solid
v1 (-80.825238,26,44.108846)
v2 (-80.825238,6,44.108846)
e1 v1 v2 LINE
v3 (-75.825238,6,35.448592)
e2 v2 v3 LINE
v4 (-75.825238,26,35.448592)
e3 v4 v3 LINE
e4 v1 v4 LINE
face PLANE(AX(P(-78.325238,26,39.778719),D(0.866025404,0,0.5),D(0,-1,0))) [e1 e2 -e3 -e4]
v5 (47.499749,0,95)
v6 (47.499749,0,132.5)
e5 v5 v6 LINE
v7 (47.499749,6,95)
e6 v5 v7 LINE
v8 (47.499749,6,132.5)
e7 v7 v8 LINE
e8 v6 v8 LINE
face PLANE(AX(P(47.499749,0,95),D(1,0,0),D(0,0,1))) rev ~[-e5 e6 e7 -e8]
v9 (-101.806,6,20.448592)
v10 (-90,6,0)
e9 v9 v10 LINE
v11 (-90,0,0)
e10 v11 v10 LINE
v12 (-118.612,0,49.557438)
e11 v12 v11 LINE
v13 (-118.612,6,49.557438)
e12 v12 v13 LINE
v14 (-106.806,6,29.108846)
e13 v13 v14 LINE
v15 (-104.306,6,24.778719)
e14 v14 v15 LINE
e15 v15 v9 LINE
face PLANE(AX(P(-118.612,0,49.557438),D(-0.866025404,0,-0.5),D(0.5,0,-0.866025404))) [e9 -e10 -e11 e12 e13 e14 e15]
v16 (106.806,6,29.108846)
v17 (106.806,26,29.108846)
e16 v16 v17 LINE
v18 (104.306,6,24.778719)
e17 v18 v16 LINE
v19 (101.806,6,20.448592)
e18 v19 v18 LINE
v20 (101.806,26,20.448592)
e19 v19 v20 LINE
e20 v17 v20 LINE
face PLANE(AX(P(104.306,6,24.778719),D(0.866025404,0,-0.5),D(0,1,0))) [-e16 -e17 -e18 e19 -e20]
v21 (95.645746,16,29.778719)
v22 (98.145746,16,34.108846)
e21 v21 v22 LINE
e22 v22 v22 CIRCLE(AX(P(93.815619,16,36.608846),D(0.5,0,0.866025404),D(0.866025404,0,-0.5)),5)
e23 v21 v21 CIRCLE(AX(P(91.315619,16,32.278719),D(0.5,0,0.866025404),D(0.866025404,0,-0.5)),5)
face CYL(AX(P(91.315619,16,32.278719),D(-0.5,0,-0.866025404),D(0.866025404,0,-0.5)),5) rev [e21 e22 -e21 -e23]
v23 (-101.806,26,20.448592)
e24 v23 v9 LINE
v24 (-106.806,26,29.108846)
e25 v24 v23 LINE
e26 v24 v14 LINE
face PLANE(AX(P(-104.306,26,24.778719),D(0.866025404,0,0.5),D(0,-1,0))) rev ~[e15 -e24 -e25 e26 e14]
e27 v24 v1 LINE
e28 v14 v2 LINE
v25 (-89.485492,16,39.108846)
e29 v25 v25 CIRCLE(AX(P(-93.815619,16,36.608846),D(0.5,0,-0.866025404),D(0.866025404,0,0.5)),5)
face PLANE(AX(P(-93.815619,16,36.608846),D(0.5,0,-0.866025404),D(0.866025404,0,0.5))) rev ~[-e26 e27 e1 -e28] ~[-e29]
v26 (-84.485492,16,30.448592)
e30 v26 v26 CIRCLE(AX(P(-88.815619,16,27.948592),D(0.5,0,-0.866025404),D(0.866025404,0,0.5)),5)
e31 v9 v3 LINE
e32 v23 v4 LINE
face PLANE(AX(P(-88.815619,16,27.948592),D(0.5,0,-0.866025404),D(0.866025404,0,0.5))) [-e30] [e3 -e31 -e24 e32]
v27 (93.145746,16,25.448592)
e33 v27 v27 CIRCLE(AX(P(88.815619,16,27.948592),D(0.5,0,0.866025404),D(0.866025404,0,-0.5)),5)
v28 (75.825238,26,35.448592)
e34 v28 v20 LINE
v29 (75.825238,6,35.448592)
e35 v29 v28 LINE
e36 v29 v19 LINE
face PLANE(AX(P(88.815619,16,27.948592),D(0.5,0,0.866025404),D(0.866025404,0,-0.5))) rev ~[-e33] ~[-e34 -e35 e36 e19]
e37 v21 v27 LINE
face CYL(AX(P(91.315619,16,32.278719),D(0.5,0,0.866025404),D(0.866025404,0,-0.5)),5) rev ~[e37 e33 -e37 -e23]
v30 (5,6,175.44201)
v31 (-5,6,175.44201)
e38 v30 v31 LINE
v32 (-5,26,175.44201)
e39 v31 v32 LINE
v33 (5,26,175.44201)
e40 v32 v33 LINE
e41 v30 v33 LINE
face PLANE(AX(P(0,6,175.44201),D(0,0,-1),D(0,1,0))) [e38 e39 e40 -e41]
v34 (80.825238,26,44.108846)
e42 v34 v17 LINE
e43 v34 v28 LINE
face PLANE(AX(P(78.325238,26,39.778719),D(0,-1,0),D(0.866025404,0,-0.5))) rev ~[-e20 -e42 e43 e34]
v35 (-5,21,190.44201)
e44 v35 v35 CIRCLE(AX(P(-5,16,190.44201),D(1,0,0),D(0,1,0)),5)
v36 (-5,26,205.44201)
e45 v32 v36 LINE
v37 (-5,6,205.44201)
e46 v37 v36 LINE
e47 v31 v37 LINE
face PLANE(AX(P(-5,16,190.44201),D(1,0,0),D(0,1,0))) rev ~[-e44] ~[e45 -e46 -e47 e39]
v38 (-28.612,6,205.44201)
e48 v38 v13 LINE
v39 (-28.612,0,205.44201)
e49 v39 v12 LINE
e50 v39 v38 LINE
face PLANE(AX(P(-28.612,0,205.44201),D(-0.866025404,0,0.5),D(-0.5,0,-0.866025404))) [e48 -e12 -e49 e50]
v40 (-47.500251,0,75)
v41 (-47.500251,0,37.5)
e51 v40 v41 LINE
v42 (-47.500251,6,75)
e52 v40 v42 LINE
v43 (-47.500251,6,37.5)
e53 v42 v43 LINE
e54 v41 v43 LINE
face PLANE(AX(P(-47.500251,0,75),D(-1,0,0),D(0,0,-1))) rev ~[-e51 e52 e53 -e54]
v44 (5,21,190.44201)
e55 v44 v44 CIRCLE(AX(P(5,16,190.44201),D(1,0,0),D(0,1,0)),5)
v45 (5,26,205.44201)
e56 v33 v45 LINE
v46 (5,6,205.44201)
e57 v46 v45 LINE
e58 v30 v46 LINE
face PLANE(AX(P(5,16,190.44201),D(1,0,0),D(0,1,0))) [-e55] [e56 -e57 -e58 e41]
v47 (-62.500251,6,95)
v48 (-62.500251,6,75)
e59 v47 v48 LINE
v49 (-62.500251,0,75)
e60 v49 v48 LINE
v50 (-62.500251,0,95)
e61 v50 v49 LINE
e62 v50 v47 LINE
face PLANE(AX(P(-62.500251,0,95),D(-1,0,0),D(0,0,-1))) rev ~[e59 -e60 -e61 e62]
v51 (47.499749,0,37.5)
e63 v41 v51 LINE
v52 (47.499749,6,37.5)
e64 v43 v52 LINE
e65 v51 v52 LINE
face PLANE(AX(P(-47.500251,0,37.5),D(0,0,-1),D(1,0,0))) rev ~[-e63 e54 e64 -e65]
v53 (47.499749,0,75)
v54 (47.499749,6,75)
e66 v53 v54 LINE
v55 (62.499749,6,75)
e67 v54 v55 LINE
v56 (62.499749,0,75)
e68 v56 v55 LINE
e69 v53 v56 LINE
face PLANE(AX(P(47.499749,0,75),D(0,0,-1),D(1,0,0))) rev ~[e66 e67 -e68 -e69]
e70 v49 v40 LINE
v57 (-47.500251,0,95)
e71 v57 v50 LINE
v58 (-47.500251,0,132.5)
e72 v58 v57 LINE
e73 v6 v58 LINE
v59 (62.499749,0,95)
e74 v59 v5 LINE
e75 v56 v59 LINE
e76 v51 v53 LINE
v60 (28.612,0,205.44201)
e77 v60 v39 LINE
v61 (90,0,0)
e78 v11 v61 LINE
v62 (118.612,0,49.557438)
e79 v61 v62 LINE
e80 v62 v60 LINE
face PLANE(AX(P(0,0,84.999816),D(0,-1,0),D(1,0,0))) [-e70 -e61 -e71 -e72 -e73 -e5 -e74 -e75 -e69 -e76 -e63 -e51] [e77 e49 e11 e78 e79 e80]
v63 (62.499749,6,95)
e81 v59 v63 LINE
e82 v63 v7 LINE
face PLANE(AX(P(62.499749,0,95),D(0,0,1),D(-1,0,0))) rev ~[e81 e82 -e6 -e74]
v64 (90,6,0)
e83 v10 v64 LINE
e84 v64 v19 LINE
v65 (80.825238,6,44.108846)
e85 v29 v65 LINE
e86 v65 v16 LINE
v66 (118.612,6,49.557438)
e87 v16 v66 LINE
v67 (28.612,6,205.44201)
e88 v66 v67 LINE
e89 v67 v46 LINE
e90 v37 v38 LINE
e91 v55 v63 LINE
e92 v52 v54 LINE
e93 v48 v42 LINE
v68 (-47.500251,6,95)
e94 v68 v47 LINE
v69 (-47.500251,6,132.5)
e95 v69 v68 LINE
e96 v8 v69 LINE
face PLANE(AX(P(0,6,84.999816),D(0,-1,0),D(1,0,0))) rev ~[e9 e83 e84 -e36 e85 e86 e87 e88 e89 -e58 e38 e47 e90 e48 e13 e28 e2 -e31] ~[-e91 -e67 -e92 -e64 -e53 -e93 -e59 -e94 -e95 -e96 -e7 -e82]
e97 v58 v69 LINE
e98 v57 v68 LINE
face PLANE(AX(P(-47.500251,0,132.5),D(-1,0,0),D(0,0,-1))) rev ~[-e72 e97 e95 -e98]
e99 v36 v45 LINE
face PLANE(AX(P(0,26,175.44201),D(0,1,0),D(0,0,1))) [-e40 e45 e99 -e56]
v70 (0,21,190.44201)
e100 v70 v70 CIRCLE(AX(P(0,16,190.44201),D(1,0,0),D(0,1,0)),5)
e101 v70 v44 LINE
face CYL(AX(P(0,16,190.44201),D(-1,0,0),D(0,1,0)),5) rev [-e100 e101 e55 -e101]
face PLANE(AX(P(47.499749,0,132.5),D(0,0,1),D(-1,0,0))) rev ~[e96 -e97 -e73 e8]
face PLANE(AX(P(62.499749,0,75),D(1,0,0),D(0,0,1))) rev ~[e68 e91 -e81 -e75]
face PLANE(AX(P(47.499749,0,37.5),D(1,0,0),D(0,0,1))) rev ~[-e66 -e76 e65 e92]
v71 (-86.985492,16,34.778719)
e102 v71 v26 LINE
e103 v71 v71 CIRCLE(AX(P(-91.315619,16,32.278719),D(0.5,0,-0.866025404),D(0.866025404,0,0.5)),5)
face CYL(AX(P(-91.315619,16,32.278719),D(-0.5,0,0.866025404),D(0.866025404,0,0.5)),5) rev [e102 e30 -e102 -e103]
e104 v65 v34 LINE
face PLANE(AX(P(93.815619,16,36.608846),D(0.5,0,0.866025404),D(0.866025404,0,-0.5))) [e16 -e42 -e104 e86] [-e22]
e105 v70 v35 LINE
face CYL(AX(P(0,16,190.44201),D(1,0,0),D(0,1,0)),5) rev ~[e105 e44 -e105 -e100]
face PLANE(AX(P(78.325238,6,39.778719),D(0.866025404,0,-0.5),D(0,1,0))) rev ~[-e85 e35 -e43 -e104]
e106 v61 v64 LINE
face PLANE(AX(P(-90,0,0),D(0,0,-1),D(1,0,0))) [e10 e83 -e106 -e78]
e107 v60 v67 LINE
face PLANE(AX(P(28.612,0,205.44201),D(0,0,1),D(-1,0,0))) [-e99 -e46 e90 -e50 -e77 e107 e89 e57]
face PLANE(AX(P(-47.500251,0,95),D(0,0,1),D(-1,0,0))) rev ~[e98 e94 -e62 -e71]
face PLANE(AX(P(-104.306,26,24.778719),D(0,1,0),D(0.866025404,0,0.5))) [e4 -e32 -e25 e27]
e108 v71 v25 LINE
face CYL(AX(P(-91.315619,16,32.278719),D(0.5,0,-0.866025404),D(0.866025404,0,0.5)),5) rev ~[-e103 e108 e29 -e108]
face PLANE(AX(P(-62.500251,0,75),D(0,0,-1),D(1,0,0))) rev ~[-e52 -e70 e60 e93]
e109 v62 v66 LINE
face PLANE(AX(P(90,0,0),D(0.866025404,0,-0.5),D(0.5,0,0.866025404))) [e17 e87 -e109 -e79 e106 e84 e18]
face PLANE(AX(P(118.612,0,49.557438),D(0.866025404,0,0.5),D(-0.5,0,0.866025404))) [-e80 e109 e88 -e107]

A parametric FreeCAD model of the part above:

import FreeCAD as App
import Part
import Sketcher
Q = App.Units.Quantity


def add_polygon(sketch, points):
    """Adds a closed chain of lines whose ends are joined by coincident constraints."""
    first, n = sketch.GeometryCount, len(points)
    for a, b in zip(points, points[1:] + points[:1]):
        sketch.addGeometry(Part.LineSegment(App.Vector(*a, 0), App.Vector(*b, 0)), False)
    for i in range(n):
        sketch.addConstraint(Sketcher.Constraint("Coincident", first + i, 2, first + (i + 1) % n, 1))

doc = App.newDocument("Part")
body = doc.addObject("PartDesign::Body", "Body")

# Sketch on XZ plane
sketch1 = body.newObject("Sketcher::SketchObject", "Sketch")
sketch1.AttachmentSupport = (doc.getObject("XZ_Plane"), [""])
sketch1.MapMode = "FlatFace"
add_polygon(sketch1, [(29, 205), (-29, 205), (-119, 50), (-90, 0), (90, 0), (119, 50)])  # lines 0-5
sketch1.addConstraint(Sketcher.Constraint("Horizontal", 0))
sketch1.addConstraint(Sketcher.Constraint("Horizontal", 3))
sketch1.addConstraint(Sketcher.Constraint("Symmetric", 2, 2, 3, 2, -1, 1))
sketch1.addConstraint(Sketcher.Constraint("Symmetric", 1, 2, 4, 2, -2))
sketch1.addConstraint(Sketcher.Constraint("Parallel", 1, 4))
sketch1.addConstraint(Sketcher.Constraint("Parallel", 2, 5))
sketch1.addConstraint(Sketcher.Constraint("DistanceX", 3, 1, 3, 2, Q("180 mm")))
sketch1.addConstraint(Sketcher.Constraint("Angle", 1, Q("-120 deg")))
sketch1.addConstraint(Sketcher.Constraint("Distance", 1, Q("180 mm")))
sketch1.addConstraint(Sketcher.Constraint("DistanceX", 0, 2, 0, 1, Q("57.224 mm")))
pad1 = body.newObject("PartDesign::Pad", "Pad")
pad1.Profile = sketch1
pad1.Length = 6
pad1.Reversed = True

# Sketch on XZ plane
sketch2 = body.newObject("Sketcher::SketchObject", "Sketch001")
sketch2.AttachmentSupport = (doc.getObject("XZ_Plane"), [""])
sketch2.MapMode = "FlatFace"
add_polygon(sketch2, [(47, 132), (-48, 132), (-48, 95), (-63, 95), (-63, 75), (-48, 75), (-48, 38), (47, 38), (47, 75), (62, 75), (62, 95), (47, 95)])  # lines 0-11
sketch2.addConstraint(Sketcher.Constraint("Horizontal", 0))
sketch2.addConstraint(Sketcher.Constraint("Vertical", 1))
sketch2.addConstraint(Sketcher.Constraint("Horizontal", 2))
sketch2.addConstraint(Sketcher.Constraint("Vertical", 3))
sketch2.addConstraint(Sketcher.Constraint("Horizontal", 4))
sketch2.addConstraint(Sketcher.Constraint("Vertical", 5))
sketch2.addConstraint(Sketcher.Constraint("Horizontal", 6))
sketch2.addConstraint(Sketcher.Constraint("Vertical", 7))
sketch2.addConstraint(Sketcher.Constraint("Horizontal", 8))
sketch2.addConstraint(Sketcher.Constraint("Vertical", 9))
sketch2.addConstraint(Sketcher.Constraint("Horizontal", 10))
sketch2.addConstraint(Sketcher.Constraint("Vertical", 11))
sketch2.addConstraint(Sketcher.Constraint("Horizontal", 4, 2, 7, 2))
sketch2.addConstraint(Sketcher.Constraint("Horizontal", 2, 2, 9, 2))
sketch2.addConstraint(Sketcher.Constraint("Vertical", 1, 2, 4, 2))
sketch2.addConstraint(Sketcher.Constraint("Vertical", 7, 2, 10, 2))
sketch2.addConstraint(Sketcher.Constraint("Equal", 4, 8))
sketch2.addConstraint(Sketcher.Constraint("Equal", 1, 5))
sketch2.addConstraint(Sketcher.Constraint("DistanceX", 0, 2, 0, 1, Q("95 mm")))
sketch2.addConstraint(Sketcher.Constraint("DistanceX", 2, 2, 2, 1, Q("15 mm")))
sketch2.addConstraint(Sketcher.Constraint("DistanceY", 3, 2, 3, 1, Q("20 mm")))
sketch2.addConstraint(Sketcher.Constraint("DistanceY", 1, 2, 1, 1, Q("37.5 mm")))
sketch2.addConstraint(Sketcher.Constraint("DistanceY", -1, 1, 1, 2, Q("95 mm")))
sketch2.addConstraint(Sketcher.Constraint("DistanceX", 0, 2, -1, 1, Q("47.500251 mm")))
pocket1 = body.newObject("PartDesign::Pocket", "Pocket")
pocket1.Profile = sketch2
pocket1.Length = 25

# Sketch on YZ plane
sketch3 = body.newObject("Sketcher::SketchObject", "Sketch002")
sketch3.AttachmentSupport = (doc.getObject("YZ_Plane"), [""])
sketch3.MapMode = "FlatFace"
add_polygon(sketch3, [(6, 205), (6, 175), (26, 175), (26, 205)])  # lines 0-3
sketch3.addGeometry(Part.Circle(App.Vector(16, 190, 0), App.Vector(0, 0, 1), 5), False)  # 4
sketch3.addConstraint(Sketcher.Constraint("Vertical", 0))
sketch3.addConstraint(Sketcher.Constraint("Horizontal", 1))
sketch3.addConstraint(Sketcher.Constraint("Vertical", 2))
sketch3.addConstraint(Sketcher.Constraint("Horizontal", 3))
sketch3.addConstraint(Sketcher.Constraint("Diameter", 4, Q("10 mm")))
sketch3.addConstraint(Sketcher.Constraint("DistanceX", 1, 1, 1, 2, Q("20 mm")))
sketch3.addConstraint(Sketcher.Constraint("DistanceY", 0, 2, 0, 1, Q("30 mm")))
sketch3.addConstraint(Sketcher.Constraint("DistanceX", -1, 1, 4, 3, Q("16 mm")))
sketch3.addConstraint(Sketcher.Constraint("DistanceX", -1, 1, 0, 2, Q("6 mm")))
sketch3.addConstraint(Sketcher.Constraint("DistanceY", 0, 2, 4, 3, Q("15 mm")))
sketch3.addConstraint(Sketcher.Constraint("DistanceY", -1, 1, 4, 3, Q("190.44201 mm")))
pad2 = body.newObject("PartDesign::Pad", "Pad001")
pad2.Profile = sketch3
pad2.Type = "TwoLengths"
pad2.Length = 5
pad2.Length2 = 5

# Sketch on an angled plane
sketch4 = body.newObject("Sketcher::SketchObject", "Sketch003")
sketch4.Placement = App.Placement(App.Vector(36.806, 0, 63.749862), App.Rotation(App.Vector(0.866025404, 0, -0.5), App.Vector(0, 1, 0), App.Vector(0.5, 0, 0.866025404), "ZXY"))
add_polygon(sketch4, [(48, 26), (48, 6), (78, 6), (78, 26)])  # lines 0-3
sketch4.addGeometry(Part.Circle(App.Vector(63, 16, 0), App.Vector(0, 0, 1), 5), False)  # 4
sketch4.addConstraint(Sketcher.Constraint("Vertical", 0))
sketch4.addConstraint(Sketcher.Constraint("Horizontal", 1))
sketch4.addConstraint(Sketcher.Constraint("Vertical", 2))
sketch4.addConstraint(Sketcher.Constraint("Horizontal", 3))
sketch4.addConstraint(Sketcher.Constraint("Diameter", 4, Q("10 mm")))
sketch4.addConstraint(Sketcher.Constraint("DistanceX", 1, 1, 1, 2, Q("30 mm")))
sketch4.addConstraint(Sketcher.Constraint("DistanceY", 0, 2, 0, 1, Q("20 mm")))
sketch4.addConstraint(Sketcher.Constraint("DistanceY", -1, 1, 4, 3, Q("16 mm")))
sketch4.addConstraint(Sketcher.Constraint("DistanceY", -1, 1, 0, 2, Q("6 mm")))
sketch4.addConstraint(Sketcher.Constraint("DistanceX", 0, 2, 4, 3, Q("15 mm")))
sketch4.addConstraint(Sketcher.Constraint("DistanceX", -1, 1, 4, 3, Q("62.942286 mm")))
pad3 = body.newObject("PartDesign::Pad", "Pad002")
pad3.Profile = sketch4
pad3.Type = "TwoLengths"
pad3.Length = 5
pad3.Length2 = 5

# Sketch on an angled plane
sketch5 = body.newObject("Sketcher::SketchObject", "Sketch004")
sketch5.Placement = App.Placement(App.Vector(-36.806, 0, 63.749862), App.Rotation(App.Vector(0.866025404, 0, 0.5), App.Vector(0, -1, 0), App.Vector(0.5, 0, -0.866025404), "ZXY"))
add_polygon(sketch5, [(-78, -6), (-78, -26), (-48, -26), (-48, -6)])  # lines 0-3
sketch5.addGeometry(Part.Circle(App.Vector(-63, -16, 0), App.Vector(0, 0, 1), 5), False)  # 4
sketch5.addConstraint(Sketcher.Constraint("Vertical", 0))
sketch5.addConstraint(Sketcher.Constraint("Horizontal", 1))
sketch5.addConstraint(Sketcher.Constraint("Vertical", 2))
sketch5.addConstraint(Sketcher.Constraint("Horizontal", 3))
sketch5.addConstraint(Sketcher.Constraint("Diameter", 4, Q("10 mm")))
sketch5.addConstraint(Sketcher.Constraint("DistanceX", 1, 1, 1, 2, Q("30 mm")))
sketch5.addConstraint(Sketcher.Constraint("DistanceY", 0, 2, 0, 1, Q("20 mm")))
sketch5.addConstraint(Sketcher.Constraint("DistanceY", 4, 3, -1, 1, Q("16 mm")))
sketch5.addConstraint(Sketcher.Constraint("DistanceY", 0, 2, -1, 1, Q("26 mm")))
sketch5.addConstraint(Sketcher.Constraint("DistanceX", 0, 2, 4, 3, Q("15 mm")))
sketch5.addConstraint(Sketcher.Constraint("DistanceX", 4, 3, -1, 1, Q("62.942286 mm")))
pad4 = body.newObject("PartDesign::Pad", "Pad003")
pad4.Profile = sketch5
pad4.Type = "TwoLengths"
pad4.Length = 5
pad4.Length2 = 5

doc.recompute()
